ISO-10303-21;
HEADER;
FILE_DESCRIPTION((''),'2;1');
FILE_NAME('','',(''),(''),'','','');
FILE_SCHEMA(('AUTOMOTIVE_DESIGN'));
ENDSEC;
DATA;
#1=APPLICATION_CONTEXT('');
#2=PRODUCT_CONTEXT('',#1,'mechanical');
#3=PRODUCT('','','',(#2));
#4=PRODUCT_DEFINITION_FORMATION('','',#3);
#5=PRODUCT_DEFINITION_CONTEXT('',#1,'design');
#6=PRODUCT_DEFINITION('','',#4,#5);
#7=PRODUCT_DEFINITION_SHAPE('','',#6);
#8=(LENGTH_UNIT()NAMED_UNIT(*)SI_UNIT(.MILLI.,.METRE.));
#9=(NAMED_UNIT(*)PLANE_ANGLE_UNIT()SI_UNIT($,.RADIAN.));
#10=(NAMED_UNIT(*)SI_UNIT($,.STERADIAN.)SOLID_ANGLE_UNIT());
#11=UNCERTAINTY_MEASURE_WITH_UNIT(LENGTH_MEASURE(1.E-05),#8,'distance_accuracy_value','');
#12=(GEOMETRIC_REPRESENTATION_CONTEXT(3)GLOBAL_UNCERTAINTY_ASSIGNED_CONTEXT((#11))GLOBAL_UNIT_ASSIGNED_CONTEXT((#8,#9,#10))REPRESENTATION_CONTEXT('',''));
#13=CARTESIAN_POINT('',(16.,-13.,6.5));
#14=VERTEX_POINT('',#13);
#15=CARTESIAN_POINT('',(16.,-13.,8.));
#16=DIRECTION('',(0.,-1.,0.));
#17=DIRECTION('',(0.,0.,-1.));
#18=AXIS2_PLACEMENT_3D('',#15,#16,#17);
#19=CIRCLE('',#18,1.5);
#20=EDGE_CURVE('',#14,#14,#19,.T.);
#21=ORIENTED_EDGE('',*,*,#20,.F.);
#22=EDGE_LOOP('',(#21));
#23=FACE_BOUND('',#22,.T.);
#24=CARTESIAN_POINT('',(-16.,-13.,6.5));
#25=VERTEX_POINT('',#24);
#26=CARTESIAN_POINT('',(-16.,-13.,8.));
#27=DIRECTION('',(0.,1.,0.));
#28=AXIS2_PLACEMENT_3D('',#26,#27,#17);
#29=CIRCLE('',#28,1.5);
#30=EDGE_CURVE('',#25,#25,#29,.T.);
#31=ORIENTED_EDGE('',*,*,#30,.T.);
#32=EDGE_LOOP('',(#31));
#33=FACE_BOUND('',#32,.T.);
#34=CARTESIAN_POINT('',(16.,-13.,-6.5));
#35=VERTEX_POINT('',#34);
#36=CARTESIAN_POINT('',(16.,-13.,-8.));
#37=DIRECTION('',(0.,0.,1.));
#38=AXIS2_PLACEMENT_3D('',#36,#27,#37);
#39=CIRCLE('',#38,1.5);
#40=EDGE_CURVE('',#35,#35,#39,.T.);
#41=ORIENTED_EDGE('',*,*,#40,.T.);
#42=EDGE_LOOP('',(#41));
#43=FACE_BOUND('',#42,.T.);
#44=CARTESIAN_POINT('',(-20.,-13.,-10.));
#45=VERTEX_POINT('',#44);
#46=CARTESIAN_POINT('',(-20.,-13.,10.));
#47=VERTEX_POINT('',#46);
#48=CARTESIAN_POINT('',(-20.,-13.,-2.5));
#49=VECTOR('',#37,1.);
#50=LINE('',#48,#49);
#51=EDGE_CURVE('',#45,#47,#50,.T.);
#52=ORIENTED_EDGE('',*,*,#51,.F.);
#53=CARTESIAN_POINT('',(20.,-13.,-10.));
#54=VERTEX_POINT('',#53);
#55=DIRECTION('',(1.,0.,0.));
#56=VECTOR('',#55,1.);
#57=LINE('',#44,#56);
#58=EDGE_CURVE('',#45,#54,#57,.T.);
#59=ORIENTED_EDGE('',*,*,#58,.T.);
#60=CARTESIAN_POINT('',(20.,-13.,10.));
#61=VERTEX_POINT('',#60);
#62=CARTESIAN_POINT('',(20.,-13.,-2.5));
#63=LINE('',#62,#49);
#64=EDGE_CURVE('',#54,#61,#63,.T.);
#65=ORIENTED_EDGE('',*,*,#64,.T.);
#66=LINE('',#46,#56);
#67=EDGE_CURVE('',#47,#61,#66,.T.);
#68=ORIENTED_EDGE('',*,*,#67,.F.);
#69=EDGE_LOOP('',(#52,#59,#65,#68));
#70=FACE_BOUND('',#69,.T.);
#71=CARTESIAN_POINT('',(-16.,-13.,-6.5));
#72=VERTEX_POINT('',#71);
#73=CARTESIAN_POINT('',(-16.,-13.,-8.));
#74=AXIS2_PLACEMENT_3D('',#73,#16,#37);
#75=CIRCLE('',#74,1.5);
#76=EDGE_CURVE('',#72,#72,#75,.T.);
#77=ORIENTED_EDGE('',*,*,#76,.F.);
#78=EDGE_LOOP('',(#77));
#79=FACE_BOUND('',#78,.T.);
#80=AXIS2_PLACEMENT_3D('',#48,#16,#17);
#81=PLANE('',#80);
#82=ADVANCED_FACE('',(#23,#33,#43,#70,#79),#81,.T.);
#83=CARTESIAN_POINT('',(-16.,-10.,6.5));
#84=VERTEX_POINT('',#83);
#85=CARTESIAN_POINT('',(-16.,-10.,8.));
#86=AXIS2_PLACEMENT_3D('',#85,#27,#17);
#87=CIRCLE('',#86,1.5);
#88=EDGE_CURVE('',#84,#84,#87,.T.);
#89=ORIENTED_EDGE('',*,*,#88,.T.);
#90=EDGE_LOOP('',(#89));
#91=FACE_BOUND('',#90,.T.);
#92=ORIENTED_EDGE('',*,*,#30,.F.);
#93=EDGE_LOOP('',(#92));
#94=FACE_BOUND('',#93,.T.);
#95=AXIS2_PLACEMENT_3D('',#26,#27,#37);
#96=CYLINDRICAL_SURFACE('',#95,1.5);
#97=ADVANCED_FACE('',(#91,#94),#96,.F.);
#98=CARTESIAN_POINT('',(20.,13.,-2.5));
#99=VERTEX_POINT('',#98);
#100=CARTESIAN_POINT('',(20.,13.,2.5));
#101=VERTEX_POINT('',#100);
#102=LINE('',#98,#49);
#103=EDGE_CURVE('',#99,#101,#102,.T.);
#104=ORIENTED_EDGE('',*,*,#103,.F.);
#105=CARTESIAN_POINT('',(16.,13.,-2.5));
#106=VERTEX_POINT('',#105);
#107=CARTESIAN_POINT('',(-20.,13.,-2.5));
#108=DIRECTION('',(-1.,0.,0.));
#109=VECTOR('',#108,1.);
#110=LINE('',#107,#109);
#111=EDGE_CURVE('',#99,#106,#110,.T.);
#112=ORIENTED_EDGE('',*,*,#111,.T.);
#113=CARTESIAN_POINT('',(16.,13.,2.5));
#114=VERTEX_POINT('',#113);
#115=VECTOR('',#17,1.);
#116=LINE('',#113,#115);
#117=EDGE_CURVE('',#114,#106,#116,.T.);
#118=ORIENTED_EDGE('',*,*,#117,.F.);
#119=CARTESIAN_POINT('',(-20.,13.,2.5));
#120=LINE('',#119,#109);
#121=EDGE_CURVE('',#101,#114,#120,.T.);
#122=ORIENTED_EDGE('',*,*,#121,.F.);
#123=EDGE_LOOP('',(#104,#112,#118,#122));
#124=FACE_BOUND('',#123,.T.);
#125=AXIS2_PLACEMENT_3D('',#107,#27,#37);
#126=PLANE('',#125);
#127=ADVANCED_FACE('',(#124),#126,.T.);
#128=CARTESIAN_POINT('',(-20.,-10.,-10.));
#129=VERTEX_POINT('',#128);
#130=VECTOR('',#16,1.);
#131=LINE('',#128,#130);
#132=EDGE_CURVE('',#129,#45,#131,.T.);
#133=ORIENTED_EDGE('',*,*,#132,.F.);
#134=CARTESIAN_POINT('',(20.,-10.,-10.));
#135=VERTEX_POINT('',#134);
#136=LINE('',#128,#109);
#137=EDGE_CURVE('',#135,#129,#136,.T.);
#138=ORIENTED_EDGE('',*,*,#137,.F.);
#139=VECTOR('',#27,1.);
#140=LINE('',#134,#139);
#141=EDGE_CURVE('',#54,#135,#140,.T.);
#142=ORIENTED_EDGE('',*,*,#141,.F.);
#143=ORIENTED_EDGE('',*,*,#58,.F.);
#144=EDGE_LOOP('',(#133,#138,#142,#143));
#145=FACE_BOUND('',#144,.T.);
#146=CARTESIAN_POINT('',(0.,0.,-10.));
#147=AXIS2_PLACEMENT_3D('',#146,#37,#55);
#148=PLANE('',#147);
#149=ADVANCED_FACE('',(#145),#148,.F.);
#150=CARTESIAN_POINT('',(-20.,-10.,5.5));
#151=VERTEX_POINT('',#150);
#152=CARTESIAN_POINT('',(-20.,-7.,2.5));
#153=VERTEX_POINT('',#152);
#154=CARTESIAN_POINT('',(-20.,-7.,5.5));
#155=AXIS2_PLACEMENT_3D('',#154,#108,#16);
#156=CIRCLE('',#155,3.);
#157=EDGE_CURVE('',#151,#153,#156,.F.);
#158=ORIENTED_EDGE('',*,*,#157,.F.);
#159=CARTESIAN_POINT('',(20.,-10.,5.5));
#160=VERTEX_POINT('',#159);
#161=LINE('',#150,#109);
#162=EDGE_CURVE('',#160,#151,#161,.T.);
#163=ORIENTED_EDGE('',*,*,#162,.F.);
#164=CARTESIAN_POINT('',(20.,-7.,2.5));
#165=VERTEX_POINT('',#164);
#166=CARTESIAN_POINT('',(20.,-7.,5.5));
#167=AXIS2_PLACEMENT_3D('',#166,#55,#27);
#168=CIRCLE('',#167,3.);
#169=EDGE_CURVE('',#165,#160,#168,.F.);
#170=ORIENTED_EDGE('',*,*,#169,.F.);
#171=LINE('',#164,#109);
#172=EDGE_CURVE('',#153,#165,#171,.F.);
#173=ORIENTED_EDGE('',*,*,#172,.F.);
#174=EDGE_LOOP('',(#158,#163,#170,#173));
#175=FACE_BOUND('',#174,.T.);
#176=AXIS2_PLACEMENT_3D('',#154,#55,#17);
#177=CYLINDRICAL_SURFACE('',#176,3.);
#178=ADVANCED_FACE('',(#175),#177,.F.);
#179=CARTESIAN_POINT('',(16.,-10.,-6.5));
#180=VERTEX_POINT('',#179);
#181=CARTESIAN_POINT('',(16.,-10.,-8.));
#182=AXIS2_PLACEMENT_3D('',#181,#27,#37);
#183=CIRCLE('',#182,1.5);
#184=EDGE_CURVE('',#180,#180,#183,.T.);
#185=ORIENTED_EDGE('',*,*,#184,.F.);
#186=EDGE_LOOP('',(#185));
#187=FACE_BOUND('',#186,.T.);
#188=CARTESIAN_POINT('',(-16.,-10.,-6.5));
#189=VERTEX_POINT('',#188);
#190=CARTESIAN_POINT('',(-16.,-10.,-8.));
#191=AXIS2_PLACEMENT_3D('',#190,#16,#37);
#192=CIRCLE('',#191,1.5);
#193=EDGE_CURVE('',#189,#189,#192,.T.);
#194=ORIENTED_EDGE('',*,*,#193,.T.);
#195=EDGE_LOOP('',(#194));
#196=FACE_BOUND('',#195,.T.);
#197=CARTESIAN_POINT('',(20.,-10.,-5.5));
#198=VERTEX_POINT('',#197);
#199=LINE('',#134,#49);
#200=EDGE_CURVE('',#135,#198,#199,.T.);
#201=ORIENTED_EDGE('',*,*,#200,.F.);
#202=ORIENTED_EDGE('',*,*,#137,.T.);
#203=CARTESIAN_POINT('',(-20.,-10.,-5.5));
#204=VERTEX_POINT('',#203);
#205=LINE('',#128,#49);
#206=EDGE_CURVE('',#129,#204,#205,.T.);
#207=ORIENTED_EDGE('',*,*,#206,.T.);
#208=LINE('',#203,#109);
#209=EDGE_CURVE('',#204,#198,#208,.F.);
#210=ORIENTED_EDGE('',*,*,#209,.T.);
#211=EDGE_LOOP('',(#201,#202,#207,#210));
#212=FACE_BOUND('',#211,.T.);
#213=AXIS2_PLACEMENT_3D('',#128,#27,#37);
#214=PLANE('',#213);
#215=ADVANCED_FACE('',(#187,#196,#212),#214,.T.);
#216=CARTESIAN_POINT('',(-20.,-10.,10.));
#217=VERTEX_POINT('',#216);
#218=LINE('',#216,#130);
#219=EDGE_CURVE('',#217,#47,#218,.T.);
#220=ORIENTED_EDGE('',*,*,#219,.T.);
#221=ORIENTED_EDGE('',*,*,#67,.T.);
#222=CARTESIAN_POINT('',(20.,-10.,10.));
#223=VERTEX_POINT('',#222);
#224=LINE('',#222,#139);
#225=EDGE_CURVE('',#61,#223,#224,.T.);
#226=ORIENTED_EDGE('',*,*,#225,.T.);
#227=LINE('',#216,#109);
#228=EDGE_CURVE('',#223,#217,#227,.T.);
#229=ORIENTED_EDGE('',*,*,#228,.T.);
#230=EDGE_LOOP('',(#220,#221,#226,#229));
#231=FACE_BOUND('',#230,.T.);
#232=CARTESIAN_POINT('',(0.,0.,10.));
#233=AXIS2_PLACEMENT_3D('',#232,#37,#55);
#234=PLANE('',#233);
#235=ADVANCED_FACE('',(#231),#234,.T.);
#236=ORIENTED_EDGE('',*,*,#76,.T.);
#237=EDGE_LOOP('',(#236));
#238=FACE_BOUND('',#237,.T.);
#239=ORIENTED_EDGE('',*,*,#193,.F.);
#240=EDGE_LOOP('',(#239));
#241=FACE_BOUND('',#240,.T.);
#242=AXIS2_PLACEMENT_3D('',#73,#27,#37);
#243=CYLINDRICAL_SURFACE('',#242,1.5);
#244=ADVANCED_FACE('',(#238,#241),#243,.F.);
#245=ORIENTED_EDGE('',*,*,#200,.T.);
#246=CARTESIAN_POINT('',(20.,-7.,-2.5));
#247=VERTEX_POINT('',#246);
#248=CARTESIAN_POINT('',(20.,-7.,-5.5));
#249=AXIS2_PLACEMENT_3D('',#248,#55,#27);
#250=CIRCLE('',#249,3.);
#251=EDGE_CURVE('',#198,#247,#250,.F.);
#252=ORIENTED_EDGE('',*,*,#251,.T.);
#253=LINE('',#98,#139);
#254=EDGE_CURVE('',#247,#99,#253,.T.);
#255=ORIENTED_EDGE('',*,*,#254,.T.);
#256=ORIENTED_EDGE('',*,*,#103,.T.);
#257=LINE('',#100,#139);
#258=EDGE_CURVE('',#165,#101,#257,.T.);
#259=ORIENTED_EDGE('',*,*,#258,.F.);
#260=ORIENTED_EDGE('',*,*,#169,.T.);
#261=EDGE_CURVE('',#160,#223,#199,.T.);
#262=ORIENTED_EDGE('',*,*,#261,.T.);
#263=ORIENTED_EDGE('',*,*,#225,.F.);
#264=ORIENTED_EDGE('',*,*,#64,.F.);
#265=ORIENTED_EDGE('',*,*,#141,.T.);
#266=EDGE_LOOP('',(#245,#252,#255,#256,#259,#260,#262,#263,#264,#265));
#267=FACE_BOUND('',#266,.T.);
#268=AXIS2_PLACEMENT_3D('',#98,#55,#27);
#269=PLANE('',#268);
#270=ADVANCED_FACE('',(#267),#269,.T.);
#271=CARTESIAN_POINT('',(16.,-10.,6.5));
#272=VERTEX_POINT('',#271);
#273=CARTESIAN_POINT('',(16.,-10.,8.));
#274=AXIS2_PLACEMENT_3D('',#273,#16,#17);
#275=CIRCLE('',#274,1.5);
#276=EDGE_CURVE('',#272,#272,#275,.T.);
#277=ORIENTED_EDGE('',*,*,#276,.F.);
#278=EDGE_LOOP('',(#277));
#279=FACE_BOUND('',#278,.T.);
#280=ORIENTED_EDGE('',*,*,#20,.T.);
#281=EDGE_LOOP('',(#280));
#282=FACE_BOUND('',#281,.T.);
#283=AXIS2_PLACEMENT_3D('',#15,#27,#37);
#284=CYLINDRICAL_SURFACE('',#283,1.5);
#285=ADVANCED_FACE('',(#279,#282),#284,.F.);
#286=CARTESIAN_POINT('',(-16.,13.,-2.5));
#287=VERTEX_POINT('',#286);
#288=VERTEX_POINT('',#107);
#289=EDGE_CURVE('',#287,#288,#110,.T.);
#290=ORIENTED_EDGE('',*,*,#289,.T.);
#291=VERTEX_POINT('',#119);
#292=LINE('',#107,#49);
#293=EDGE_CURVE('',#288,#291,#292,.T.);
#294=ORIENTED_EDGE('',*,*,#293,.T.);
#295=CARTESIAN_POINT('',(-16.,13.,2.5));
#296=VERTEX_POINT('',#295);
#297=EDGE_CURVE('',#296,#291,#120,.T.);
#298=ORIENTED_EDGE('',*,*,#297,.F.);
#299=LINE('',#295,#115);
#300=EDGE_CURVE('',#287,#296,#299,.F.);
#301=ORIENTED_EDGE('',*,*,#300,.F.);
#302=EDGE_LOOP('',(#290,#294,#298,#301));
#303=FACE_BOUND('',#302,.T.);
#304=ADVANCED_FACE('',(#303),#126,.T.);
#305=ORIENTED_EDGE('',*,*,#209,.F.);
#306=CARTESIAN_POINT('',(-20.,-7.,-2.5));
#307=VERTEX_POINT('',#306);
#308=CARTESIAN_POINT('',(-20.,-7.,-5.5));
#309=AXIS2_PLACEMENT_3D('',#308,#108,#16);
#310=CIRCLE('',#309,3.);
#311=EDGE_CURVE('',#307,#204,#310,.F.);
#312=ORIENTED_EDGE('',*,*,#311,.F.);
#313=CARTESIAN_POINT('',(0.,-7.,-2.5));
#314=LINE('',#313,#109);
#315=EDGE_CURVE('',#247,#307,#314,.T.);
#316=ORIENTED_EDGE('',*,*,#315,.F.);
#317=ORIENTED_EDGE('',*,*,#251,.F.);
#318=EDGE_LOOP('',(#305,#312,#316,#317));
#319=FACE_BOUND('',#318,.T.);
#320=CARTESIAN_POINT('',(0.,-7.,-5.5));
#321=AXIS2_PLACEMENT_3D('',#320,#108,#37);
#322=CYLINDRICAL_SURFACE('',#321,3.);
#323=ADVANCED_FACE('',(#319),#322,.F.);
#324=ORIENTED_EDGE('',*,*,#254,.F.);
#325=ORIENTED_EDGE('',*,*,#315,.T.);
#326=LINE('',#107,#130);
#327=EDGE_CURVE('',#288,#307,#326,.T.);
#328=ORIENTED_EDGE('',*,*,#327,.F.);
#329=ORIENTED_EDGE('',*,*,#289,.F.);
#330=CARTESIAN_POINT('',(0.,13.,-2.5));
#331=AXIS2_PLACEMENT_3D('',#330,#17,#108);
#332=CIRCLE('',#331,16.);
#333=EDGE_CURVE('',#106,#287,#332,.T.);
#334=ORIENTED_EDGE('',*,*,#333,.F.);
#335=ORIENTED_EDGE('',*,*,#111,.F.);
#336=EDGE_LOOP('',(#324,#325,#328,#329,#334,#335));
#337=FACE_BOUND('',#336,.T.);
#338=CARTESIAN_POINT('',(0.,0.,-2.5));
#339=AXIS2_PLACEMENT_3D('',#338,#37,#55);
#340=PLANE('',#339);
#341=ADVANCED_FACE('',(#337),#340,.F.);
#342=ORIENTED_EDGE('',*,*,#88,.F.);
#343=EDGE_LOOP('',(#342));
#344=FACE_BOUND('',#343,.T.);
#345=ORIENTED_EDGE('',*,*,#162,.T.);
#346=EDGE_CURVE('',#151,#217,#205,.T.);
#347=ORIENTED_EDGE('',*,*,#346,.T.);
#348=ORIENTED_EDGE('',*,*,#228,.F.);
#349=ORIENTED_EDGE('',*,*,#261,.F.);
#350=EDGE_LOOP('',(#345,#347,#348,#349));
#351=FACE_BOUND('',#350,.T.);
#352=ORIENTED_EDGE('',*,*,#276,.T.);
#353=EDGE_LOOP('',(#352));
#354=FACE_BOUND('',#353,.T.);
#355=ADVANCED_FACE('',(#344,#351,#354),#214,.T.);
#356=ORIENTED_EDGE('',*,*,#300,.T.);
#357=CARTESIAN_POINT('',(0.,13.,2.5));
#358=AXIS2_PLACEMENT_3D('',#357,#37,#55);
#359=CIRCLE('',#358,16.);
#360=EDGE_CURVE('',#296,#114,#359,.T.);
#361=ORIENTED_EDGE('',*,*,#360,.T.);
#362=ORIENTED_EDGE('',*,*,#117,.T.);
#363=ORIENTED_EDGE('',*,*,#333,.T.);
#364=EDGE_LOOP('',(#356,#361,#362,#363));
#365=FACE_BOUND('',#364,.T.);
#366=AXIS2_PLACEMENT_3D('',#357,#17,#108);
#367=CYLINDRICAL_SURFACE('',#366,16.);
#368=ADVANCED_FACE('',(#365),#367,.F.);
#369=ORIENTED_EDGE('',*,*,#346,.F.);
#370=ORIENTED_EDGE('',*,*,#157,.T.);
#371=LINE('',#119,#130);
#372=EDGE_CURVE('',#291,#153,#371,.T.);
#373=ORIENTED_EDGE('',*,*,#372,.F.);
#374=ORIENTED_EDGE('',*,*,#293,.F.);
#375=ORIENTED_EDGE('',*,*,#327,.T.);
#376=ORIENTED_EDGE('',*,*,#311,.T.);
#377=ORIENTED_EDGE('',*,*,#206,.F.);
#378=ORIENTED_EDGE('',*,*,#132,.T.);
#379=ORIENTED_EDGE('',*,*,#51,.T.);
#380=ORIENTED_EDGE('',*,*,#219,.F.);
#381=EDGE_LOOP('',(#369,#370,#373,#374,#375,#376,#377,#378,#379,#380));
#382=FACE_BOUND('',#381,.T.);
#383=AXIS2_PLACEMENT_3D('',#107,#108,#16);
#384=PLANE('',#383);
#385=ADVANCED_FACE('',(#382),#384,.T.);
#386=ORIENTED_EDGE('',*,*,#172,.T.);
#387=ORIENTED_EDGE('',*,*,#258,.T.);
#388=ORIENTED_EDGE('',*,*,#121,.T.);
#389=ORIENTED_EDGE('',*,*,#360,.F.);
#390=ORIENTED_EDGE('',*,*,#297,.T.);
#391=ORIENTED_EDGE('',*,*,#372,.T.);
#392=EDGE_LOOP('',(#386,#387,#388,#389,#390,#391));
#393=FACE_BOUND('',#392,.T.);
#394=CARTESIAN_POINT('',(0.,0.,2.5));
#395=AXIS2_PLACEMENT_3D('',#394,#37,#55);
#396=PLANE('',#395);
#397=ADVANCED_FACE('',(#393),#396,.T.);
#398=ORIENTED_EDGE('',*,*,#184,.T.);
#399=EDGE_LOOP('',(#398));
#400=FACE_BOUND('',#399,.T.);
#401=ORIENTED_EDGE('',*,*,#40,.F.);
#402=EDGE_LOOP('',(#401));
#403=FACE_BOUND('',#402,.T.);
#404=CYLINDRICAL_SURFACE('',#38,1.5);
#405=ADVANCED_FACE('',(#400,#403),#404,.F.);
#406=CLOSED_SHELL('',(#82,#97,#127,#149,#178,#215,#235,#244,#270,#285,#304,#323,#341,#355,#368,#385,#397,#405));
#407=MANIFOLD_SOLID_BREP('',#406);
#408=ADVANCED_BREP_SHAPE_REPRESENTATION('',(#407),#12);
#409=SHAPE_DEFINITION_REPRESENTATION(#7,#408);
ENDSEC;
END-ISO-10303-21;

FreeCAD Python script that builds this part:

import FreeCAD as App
import Part
import Sketcher

V = App.Vector


def edges_at(feature, points):
    """Names of the edges that pass closest to the given points."""
    edges = feature.Shape.Edges
    near = lambda p: min(range(len(edges)), key=lambda i: edges[i].distToShape(Part.Vertex(*p))[0])
    return sorted({f"Edge{near(p) + 1}" for p in points})

doc = App.newDocument("Part")
body = doc.addObject("PartDesign::Body", "Body")

# Sketch on XY plane
sketch1 = doc.addObject("Sketcher::SketchObject", "Sketch")
body.addObject(sketch1)
sketch1.AttachmentSupport = (doc.XY_Plane, [""])
sketch1.MapMode = "FlatFace"
sketch1.addGeometry([
    Part.LineSegment(V(-20, 13, 0), V(-20, -13, 0)),
    Part.LineSegment(V(-20, -13, 0), V(20, -13, 0)),
    Part.LineSegment(V(20, -13, 0), V(20, 13, 0)),
    Part.LineSegment(V(20, 13, 0), V(-20, 13, 0)),
], False)
sketch1.addConstraint([
    Sketcher.Constraint("Coincident", 0, 2, 1, 1),
    Sketcher.Constraint("Coincident", 1, 2, 2, 1),
    Sketcher.Constraint("Coincident", 2, 2, 3, 1),
    Sketcher.Constraint("Coincident", 3, 2, 0, 1),
    Sketcher.Constraint("Vertical", 0),
    Sketcher.Constraint("Horizontal", 1),
    Sketcher.Constraint("Vertical", 2),
    Sketcher.Constraint("Horizontal", 3),
    Sketcher.Constraint("Symmetric", 0, 2, 2, 2, -1, 1),
    Sketcher.Constraint("DistanceX", 1, 1, 1, 2, 40.0),
    Sketcher.Constraint("DistanceY", 0, 2, 0, 1, 26.0),
])
pad1 = doc.addObject("PartDesign::Pad", "Pad")
body.addObject(pad1)
pad1.Profile = sketch1
pad1.Type = "TwoLengths"
pad1.Length = 2.5
pad1.Length2 = 2.5

# Sketch on XY plane
sketch2 = doc.addObject("Sketcher::SketchObject", "Sketch001")
body.addObject(sketch2)
sketch2.AttachmentSupport = (doc.XY_Plane, [""])
sketch2.MapMode = "FlatFace"
sketch2.AttachmentOffset = App.Placement(V(0, 0, -2.5), App.Rotation())
sketch2.addGeometry(Part.Circle(V(0, 13, 0), V(0, 0, 1), 16), False)
sketch2.addConstraint([
    Sketcher.Constraint("PointOnObject", 0, 3, -2),
    Sketcher.Constraint("Diameter", 0, 32.0),
    Sketcher.Constraint("DistanceY", -1, 1, 0, 3, 13.0),
])
pocket1 = doc.addObject("PartDesign::Pocket", "Pocket")
body.addObject(pocket1)
pocket1.Profile = sketch2
pocket1.Type = "ThroughAll"
pocket1.Reversed = True

# Sketch on XY plane
sketch3 = doc.addObject("Sketcher::SketchObject", "Sketch002")
body.addObject(sketch3)
sketch3.AttachmentSupport = (doc.XY_Plane, [""])
sketch3.MapMode = "FlatFace"
sketch3.addGeometry([
    Part.LineSegment(V(-20, -10, 0), V(-20, -13, 0)),
    Part.LineSegment(V(-20, -13, 0), V(20, -13, 0)),
    Part.LineSegment(V(20, -13, 0), V(20, -10, 0)),
    Part.LineSegment(V(20, -10, 0), V(-20, -10, 0)),
], False)
sketch3.addConstraint([
    Sketcher.Constraint("Coincident", 0, 2, 1, 1),
    Sketcher.Constraint("Coincident", 1, 2, 2, 1),
    Sketcher.Constraint("Coincident", 2, 2, 3, 1),
    Sketcher.Constraint("Coincident", 3, 2, 0, 1),
    Sketcher.Constraint("Vertical", 0),
    Sketcher.Constraint("Horizontal", 1),
    Sketcher.Constraint("Vertical", 2),
    Sketcher.Constraint("Horizontal", 3),
    Sketcher.Constraint("DistanceX", 1, 1, 1, 2, 40.0),
    Sketcher.Constraint("DistanceY", 0, 2, 0, 1, 3.0),
    Sketcher.Constraint("DistanceX", 0, 2, -1, 1, 20.0),
    Sketcher.Constraint("DistanceY", 0, 2, -1, 1, 13.0),
])
pad2 = doc.addObject("PartDesign::Pad", "Pad001")
body.addObject(pad2)
pad2.Profile = sketch3
pad2.Type = "TwoLengths"
pad2.Length = 10
pad2.Length2 = 10
doc.recompute()

fillet = doc.addObject("PartDesign::Fillet", "Fillet")
body.addObject(fillet)
fillet.Base = (pad2, edges_at(pad2, [(0, -10, 2.5), (0, -10, -2.5)]))
fillet.Radius = 3

# Sketch on XZ plane
sketch4 = doc.addObject("Sketcher::SketchObject", "Sketch003")
body.addObject(sketch4)
sketch4.AttachmentSupport = (doc.XZ_Plane, [""])
sketch4.MapMode = "FlatFace"
sketch4.AttachmentOffset = App.Placement(V(0, 0, 10), App.Rotation())
sketch4.addGeometry(Part.Circle(V(16, -8, 0), V(0, 0, 1), 1.5), False)
sketch4.addConstraint([
    Sketcher.Constraint("Diameter", 0, 3.0),
    Sketcher.Constraint("DistanceX", -1, 1, 0, 3, 16.0),
    Sketcher.Constraint("DistanceY", 0, 3, -1, 1, 8.0),
])
pocket2 = doc.addObject("PartDesign::Pocket", "Pocket001")
body.addObject(pocket2)
pocket2.Profile = sketch4
pocket2.Type = "ThroughAll"
pocket2.Reversed = True
doc.recompute()

mirrored = doc.addObject("PartDesign::Mirrored", "Mirrored")
body.addObject(mirrored)
mirrored.Originals = [pocket2]
mirrored.MirrorPlane = (doc.XY_Plane, [""])
body.Tip = mirrored
doc.recompute()

mirrored2 = doc.addObject("PartDesign::Mirrored", "Mirrored001")
body.addObject(mirrored2)
mirrored2.Originals = [pocket2]
mirrored2.MirrorPlane = (doc.YZ_Plane, [""])
body.Tip = mirrored2

# Sketch on XZ plane
sketch5 = doc.addObject("Sketcher::SketchObject", "Sketch004")
body.addObject(sketch5)
sketch5.AttachmentSupport = (doc.XZ_Plane, [""])
sketch5.MapMode = "FlatFace"
sketch5.AttachmentOffset = App.Placement(V(0, 0, 10), App.Rotation())
sketch5.addGeometry(Part.Circle(V(-16, 8, 0), V(0, 0, 1), 1.5), False)
sketch5.addConstraint([
    Sketcher.Constraint("Diameter", 0, 3.0),
    Sketcher.Constraint("DistanceX", 0, 3, -1, 1, 16.0),
    Sketcher.Constraint("DistanceY", -1, 1, 0, 3, 8.0),
])
pocket3 = doc.addObject("PartDesign::Pocket", "Pocket002")
body.addObject(pocket3)
pocket3.Profile = sketch5
pocket3.Type = "ThroughAll"
pocket3.Reversed = True

doc.recompute()
